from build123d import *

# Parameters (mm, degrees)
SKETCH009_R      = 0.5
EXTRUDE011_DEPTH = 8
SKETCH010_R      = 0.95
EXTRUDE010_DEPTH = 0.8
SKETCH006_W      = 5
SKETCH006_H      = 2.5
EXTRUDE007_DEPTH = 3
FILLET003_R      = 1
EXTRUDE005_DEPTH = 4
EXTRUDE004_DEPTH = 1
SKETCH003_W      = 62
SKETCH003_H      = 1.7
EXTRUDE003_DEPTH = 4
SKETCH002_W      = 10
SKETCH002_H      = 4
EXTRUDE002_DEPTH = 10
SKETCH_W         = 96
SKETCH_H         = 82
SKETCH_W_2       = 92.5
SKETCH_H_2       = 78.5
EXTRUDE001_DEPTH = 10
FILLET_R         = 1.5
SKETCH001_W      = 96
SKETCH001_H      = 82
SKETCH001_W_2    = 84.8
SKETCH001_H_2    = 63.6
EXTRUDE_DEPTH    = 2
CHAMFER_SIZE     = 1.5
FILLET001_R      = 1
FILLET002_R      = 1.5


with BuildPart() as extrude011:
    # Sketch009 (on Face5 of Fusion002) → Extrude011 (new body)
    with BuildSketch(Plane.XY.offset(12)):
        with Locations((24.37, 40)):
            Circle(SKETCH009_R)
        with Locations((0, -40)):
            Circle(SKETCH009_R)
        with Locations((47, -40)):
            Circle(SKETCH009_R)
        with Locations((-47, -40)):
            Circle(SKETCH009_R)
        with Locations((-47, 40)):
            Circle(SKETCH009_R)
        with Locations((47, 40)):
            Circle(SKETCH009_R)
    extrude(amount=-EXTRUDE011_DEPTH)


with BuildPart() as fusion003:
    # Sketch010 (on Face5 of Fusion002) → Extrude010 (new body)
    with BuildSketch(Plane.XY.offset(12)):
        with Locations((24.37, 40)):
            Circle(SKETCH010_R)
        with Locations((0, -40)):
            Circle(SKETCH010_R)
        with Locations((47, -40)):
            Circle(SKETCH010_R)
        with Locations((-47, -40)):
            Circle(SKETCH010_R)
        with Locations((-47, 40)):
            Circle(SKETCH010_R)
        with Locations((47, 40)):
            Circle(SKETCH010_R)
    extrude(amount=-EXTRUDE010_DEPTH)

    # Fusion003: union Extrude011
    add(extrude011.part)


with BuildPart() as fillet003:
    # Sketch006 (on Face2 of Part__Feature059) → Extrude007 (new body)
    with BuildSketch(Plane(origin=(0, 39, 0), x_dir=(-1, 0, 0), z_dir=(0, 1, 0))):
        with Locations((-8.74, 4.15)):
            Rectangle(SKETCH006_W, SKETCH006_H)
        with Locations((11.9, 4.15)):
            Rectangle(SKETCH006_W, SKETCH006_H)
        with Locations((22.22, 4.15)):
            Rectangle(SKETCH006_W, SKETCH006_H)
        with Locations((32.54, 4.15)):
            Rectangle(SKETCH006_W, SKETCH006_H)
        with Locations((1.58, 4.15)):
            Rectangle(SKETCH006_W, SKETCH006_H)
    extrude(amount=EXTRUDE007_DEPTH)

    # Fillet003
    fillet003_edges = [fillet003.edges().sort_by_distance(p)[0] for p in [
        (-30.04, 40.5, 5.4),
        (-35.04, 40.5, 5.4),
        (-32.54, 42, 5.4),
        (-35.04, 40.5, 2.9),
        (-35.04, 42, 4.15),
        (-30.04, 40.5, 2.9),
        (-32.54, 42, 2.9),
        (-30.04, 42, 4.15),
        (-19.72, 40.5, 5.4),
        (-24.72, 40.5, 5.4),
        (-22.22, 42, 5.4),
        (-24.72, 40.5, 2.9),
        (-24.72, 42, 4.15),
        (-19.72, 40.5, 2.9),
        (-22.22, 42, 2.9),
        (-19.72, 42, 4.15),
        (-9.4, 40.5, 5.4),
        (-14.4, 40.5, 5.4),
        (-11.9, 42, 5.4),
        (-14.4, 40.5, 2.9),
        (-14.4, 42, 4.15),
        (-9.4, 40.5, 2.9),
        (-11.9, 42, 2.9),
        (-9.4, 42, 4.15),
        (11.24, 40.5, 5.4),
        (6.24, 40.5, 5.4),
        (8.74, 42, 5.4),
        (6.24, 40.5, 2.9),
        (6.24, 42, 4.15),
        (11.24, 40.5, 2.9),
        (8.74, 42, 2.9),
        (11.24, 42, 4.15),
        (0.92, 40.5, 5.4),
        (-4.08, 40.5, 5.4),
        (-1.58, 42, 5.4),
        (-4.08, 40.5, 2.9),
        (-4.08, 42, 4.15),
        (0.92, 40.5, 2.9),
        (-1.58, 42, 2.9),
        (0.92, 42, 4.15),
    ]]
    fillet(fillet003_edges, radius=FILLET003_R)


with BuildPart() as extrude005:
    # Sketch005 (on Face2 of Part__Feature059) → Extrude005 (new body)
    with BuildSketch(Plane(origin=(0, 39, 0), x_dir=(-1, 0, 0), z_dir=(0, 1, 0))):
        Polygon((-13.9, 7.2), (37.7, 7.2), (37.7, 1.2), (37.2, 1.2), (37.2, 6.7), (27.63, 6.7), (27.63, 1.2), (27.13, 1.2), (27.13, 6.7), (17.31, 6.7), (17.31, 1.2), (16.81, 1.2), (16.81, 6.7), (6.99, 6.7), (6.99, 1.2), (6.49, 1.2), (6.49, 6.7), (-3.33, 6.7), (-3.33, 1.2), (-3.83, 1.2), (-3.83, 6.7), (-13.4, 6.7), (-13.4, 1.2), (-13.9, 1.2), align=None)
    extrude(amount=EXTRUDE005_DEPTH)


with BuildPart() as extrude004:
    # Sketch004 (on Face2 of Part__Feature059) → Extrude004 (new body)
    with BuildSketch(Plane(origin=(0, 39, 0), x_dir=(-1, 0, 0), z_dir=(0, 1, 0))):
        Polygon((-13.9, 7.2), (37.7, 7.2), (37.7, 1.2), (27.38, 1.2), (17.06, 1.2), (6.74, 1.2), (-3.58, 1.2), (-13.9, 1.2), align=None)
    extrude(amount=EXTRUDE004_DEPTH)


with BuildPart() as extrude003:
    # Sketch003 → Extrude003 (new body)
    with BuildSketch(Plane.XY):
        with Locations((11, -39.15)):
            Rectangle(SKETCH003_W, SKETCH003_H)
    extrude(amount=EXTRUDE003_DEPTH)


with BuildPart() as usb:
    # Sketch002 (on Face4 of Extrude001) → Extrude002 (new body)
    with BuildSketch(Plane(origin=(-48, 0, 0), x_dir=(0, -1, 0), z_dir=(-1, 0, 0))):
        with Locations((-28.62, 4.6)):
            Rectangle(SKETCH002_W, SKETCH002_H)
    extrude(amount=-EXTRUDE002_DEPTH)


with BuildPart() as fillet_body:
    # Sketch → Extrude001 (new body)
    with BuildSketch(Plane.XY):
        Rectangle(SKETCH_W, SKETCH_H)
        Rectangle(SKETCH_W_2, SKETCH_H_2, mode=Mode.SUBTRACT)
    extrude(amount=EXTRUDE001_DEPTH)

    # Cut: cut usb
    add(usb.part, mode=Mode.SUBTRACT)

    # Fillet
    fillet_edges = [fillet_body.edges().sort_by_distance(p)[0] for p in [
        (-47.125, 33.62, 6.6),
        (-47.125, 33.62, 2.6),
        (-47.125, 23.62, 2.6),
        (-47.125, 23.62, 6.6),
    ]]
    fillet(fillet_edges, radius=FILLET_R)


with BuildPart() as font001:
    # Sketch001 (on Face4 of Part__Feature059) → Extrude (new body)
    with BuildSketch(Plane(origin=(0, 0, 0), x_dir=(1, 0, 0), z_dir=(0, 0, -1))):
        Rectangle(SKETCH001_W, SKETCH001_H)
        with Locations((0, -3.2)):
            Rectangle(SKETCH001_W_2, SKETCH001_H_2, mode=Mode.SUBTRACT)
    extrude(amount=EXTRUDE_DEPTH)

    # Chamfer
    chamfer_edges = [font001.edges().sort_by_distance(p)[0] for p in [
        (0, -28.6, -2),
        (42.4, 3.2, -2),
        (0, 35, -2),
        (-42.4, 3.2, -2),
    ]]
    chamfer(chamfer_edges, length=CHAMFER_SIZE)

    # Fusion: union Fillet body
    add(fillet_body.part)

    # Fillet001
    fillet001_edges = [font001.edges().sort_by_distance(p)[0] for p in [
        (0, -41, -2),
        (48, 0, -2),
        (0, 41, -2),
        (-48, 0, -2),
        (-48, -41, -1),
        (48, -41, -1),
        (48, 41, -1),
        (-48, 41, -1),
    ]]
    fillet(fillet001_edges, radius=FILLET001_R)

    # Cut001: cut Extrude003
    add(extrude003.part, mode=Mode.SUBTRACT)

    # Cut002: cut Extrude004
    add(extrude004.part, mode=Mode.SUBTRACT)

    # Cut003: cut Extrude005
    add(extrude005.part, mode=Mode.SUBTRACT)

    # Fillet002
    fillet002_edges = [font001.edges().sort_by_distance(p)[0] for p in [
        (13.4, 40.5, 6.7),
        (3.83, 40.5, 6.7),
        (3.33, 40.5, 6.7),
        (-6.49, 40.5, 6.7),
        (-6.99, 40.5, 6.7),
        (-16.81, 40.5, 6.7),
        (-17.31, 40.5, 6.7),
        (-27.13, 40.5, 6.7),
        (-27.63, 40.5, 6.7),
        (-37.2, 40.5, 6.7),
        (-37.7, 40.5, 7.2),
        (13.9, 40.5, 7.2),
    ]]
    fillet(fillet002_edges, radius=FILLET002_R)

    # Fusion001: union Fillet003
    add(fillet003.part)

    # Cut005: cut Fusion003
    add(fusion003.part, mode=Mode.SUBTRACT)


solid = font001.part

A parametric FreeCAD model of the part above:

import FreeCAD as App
import Part
import Sketcher


def edges_at(feature, points):
    """Names of the edges that pass closest to the given points."""
    edges = feature.Shape.Edges
    near = lambda p: min(range(len(edges)), key=lambda i: edges[i].distToShape(Part.Vertex(*p))[0])
    return sorted({f"Edge{near(p) + 1}" for p in points})

doc = App.newDocument("Part")
body = doc.addObject("PartDesign::Body", "Body")
body.AllowCompound = True

sketch1 = body.newObject("Sketcher::SketchObject", "Sketch")
sketch1.AttachmentSupport = (doc.getObject("XY_Plane"), [""])
sketch1.MapMode = "FlatFace"
sketch1.AttachmentOffset = App.Placement(App.Vector(0, 0, 12), App.Rotation())
sketch1.addGeometry([
    Part.Circle(App.Vector(24.37, 40, 0), App.Vector(0, 0, 1), 0.5),
    Part.Circle(App.Vector(0, -40, 0), App.Vector(0, 0, 1), 0.5),
    Part.Circle(App.Vector(47, -40, 0), App.Vector(0, 0, 1), 0.5),
    Part.Circle(App.Vector(-47, -40, 0), App.Vector(0, 0, 1), 0.5),
    Part.Circle(App.Vector(-47, 40, 0), App.Vector(0, 0, 1), 0.5),
    Part.Circle(App.Vector(47, 40, 0), App.Vector(0, 0, 1), 0.5),
], False)
sketch1.addConstraint([
    Sketcher.Constraint("Equal", 0, 1),
    Sketcher.Constraint("Equal", 1, 2),
    Sketcher.Constraint("Equal", 2, 3),
    Sketcher.Constraint("Equal", 3, 4),
    Sketcher.Constraint("Equal", 4, 5),
    Sketcher.Constraint("Symmetric", 2, 3, 4, 3, -1, 1),
    Sketcher.Constraint("Symmetric", 3, 3, 5, 3, -1, 1),
    Sketcher.Constraint("Symmetric", 2, 3, 3, 3, -2),
    Sketcher.Constraint("PointOnObject", 1, 3, -2),
    Sketcher.Constraint("Horizontal", 1, 3, 2, 3),
    Sketcher.Constraint("Horizontal", 0, 3, 4, 3),
    Sketcher.Constraint("Diameter", 0, 1.0),
    Sketcher.Constraint("DistanceY", -1, 1, 0, 3, 40.0),
    Sketcher.Constraint("DistanceX", -1, 1, 2, 3, 47.0),
    Sketcher.Constraint("DistanceX", -1, 1, 0, 3, 24.37),
])
pad1 = body.newObject("PartDesign::Pad", "Pad")
pad1.Profile = sketch1
pad1.Length = 8
pad1.Reversed = True
body2 = doc.addObject("PartDesign::Body", "Body001")
body2.AllowCompound = True

sketch2 = body2.newObject("Sketcher::SketchObject", "Sketch001")
sketch2.AttachmentSupport = (doc.getObject("XY_Plane001"), [""])
sketch2.MapMode = "FlatFace"
sketch2.AttachmentOffset = App.Placement(App.Vector(0, 0, 12), App.Rotation())
sketch2.addGeometry([
    Part.Circle(App.Vector(24.37, 40, 0), App.Vector(0, 0, 1), 0.95),
    Part.Circle(App.Vector(0, -40, 0), App.Vector(0, 0, 1), 0.95),
    Part.Circle(App.Vector(47, -40, 0), App.Vector(0, 0, 1), 0.95),
    Part.Circle(App.Vector(-47, -40, 0), App.Vector(0, 0, 1), 0.95),
    Part.Circle(App.Vector(-47, 40, 0), App.Vector(0, 0, 1), 0.95),
    Part.Circle(App.Vector(47, 40, 0), App.Vector(0, 0, 1), 0.95),
], False)
sketch2.addConstraint([
    Sketcher.Constraint("Equal", 0, 1),
    Sketcher.Constraint("Equal", 1, 2),
    Sketcher.Constraint("Equal", 2, 3),
    Sketcher.Constraint("Equal", 3, 4),
    Sketcher.Constraint("Equal", 4, 5),
    Sketcher.Constraint("Symmetric", 2, 3, 4, 3, -1, 1),
    Sketcher.Constraint("Symmetric", 3, 3, 5, 3, -1, 1),
    Sketcher.Constraint("Symmetric", 2, 3, 3, 3, -2),
    Sketcher.Constraint("PointOnObject", 1, 3, -2),
    Sketcher.Constraint("Horizontal", 1, 3, 2, 3),
    Sketcher.Constraint("Horizontal", 0, 3, 4, 3),
    Sketcher.Constraint("Diameter", 0, 1.9),
    Sketcher.Constraint("DistanceY", -1, 1, 0, 3, 40.0),
    Sketcher.Constraint("DistanceX", -1, 1, 2, 3, 47.0),
    Sketcher.Constraint("DistanceX", -1, 1, 0, 3, 24.37),
])
pad2 = body2.newObject("PartDesign::Pad", "Pad001")
pad2.Profile = sketch2
pad2.Length = 0.8
pad2.Reversed = True
doc.recompute()

boolean = body2.newObject("PartDesign::Boolean", "Boolean")
boolean.Type = "Fuse"
boolean.addObjects([body])
body3 = doc.addObject("PartDesign::Body", "Body002")
body3.AllowCompound = True

sketch3 = body3.newObject("Sketcher::SketchObject", "Sketch002")
sketch3.AttachmentSupport = (doc.getObject("XZ_Plane002"), [""])
sketch3.MapMode = "FlatFace"
sketch3.AttachmentOffset = App.Placement(App.Vector(0, 0, -39), App.Rotation())
sketch3.addGeometry([
    Part.LineSegment(App.Vector(11.24, 5.4, 0), App.Vector(11.24, 2.9, 0)),
    Part.LineSegment(App.Vector(11.24, 2.9, 0), App.Vector(6.24, 2.9, 0)),
    Part.LineSegment(App.Vector(6.24, 2.9, 0), App.Vector(6.24, 5.4, 0)),
    Part.LineSegment(App.Vector(6.24, 5.4, 0), App.Vector(11.24, 5.4, 0)),
    Part.LineSegment(App.Vector(-9.4, 5.4, 0), App.Vector(-9.4, 2.9, 0)),
    Part.LineSegment(App.Vector(-9.4, 2.9, 0), App.Vector(-14.4, 2.9, 0)),
    Part.LineSegment(App.Vector(-14.4, 2.9, 0), App.Vector(-14.4, 5.4, 0)),
    Part.LineSegment(App.Vector(-14.4, 5.4, 0), App.Vector(-9.4, 5.4, 0)),
    Part.LineSegment(App.Vector(-19.72, 5.4, 0), App.Vector(-19.72, 2.9, 0)),
    Part.LineSegment(App.Vector(-19.72, 2.9, 0), App.Vector(-24.72, 2.9, 0)),
    Part.LineSegment(App.Vector(-24.72, 2.9, 0), App.Vector(-24.72, 5.4, 0)),
    Part.LineSegment(App.Vector(-24.72, 5.4, 0), App.Vector(-19.72, 5.4, 0)),
    Part.LineSegment(App.Vector(-30.04, 5.4, 0), App.Vector(-30.04, 2.9, 0)),
    Part.LineSegment(App.Vector(-30.04, 2.9, 0), App.Vector(-35.04, 2.9, 0)),
    Part.LineSegment(App.Vector(-35.04, 2.9, 0), App.Vector(-35.04, 5.4, 0)),
    Part.LineSegment(App.Vector(-35.04, 5.4, 0), App.Vector(-30.04, 5.4, 0)),
    Part.LineSegment(App.Vector(0.92, 5.4, 0), App.Vector(0.92, 2.9, 0)),
    Part.LineSegment(App.Vector(0.92, 2.9, 0), App.Vector(-4.08, 2.9, 0)),
    Part.LineSegment(App.Vector(-4.08, 2.9, 0), App.Vector(-4.08, 5.4, 0)),
    Part.LineSegment(App.Vector(-4.08, 5.4, 0), App.Vector(0.92, 5.4, 0)),
], False)
sketch3.addConstraint([
    Sketcher.Constraint("Coincident", 0, 2, 1, 1),
    Sketcher.Constraint("Coincident", 1, 2, 2, 1),
    Sketcher.Constraint("Coincident", 2, 2, 3, 1),
    Sketcher.Constraint("Coincident", 3, 2, 0, 1),
    Sketcher.Constraint("Coincident", 4, 2, 5, 1),
    Sketcher.Constraint("Coincident", 5, 2, 6, 1),
    Sketcher.Constraint("Coincident", 6, 2, 7, 1),
    Sketcher.Constraint("Coincident", 7, 2, 4, 1),
    Sketcher.Constraint("Coincident", 8, 2, 9, 1),
    Sketcher.Constraint("Coincident", 9, 2, 10, 1),
    Sketcher.Constraint("Coincident", 10, 2, 11, 1),
    Sketcher.Constraint("Coincident", 11, 2, 8, 1),
    Sketcher.Constraint("Coincident", 12, 2, 13, 1),
    Sketcher.Constraint("Coincident", 13, 2, 14, 1),
    Sketcher.Constraint("Coincident", 14, 2, 15, 1),
    Sketcher.Constraint("Coincident", 15, 2, 12, 1),
    Sketcher.Constraint("Coincident", 16, 2, 17, 1),
    Sketcher.Constraint("Coincident", 17, 2, 18, 1),
    Sketcher.Constraint("Coincident", 18, 2, 19, 1),
    Sketcher.Constraint("Coincident", 19, 2, 16, 1),
    Sketcher.Constraint("Vertical", 0),
    Sketcher.Constraint("Horizontal", 1),
    Sketcher.Constraint("Vertical", 2),
    Sketcher.Constraint("Horizontal", 3),
    Sketcher.Constraint("Vertical", 4),
    Sketcher.Constraint("Horizontal", 5),
    Sketcher.Constraint("Vertical", 6),
    Sketcher.Constraint("Horizontal", 7),
    Sketcher.Constraint("Vertical", 8),
    Sketcher.Constraint("Horizontal", 9),
    Sketcher.Constraint("Vertical", 10),
    Sketcher.Constraint("Horizontal", 11),
    Sketcher.Constraint("Vertical", 12),
    Sketcher.Constraint("Horizontal", 13),
    Sketcher.Constraint("Vertical", 14),
    Sketcher.Constraint("Horizontal", 15),
    Sketcher.Constraint("Vertical", 16),
    Sketcher.Constraint("Horizontal", 17),
    Sketcher.Constraint("Vertical", 18),
    Sketcher.Constraint("Horizontal", 19),
    Sketcher.Constraint("Horizontal", 1, 2, 4, 2),
    Sketcher.Constraint("Horizontal", 3, 2, 6, 2),
    Sketcher.Constraint("Horizontal", 5, 2, 8, 2),
    Sketcher.Constraint("Horizontal", 7, 2, 10, 2),
    Sketcher.Constraint("Horizontal", 9, 2, 12, 2),
    Sketcher.Constraint("Horizontal", 11, 2, 14, 2),
    Sketcher.Constraint("Horizontal", 13, 2, 16, 2),
    Sketcher.Constraint("Horizontal", 15, 2, 18, 2),
    Sketcher.Constraint("Equal", 3, 5),
    Sketcher.Constraint("Equal", 7, 9),
    Sketcher.Constraint("Equal", 11, 13),
    Sketcher.Constraint("Equal", 15, 17),
    Sketcher.Constraint("DistanceX", 1, 2, 1, 1, 5.0),
    Sketcher.Constraint("DistanceY", 0, 2, 0, 1, 2.5),
    Sketcher.Constraint("DistanceY", -1, 1, 0, 2, 2.9),
    Sketcher.Constraint("DistanceX", 4, 2, -1, 1, 9.4),
    Sketcher.Constraint("DistanceX", -1, 1, 0, 2, 11.24),
    Sketcher.Constraint("DistanceX", 8, 2, -1, 1, 19.72),
    Sketcher.Constraint("DistanceX", 12, 2, -1, 1, 30.04),
    Sketcher.Constraint("DistanceX", -1, 1, 16, 2, 0.92),
])
pad3 = body3.newObject("PartDesign::Pad", "Pad002")
pad3.Profile = sketch3
pad3.Length = 3
pad3.Reversed = True
doc.recompute()

fillet = body3.newObject("PartDesign::Fillet", "Fillet")
fillet.Base = (pad3, edges_at(pad3, [
    (-30.04, 40.5, 5.4),
    (-35.04, 40.5, 5.4),
    (-32.54, 42, 5.4),
    (-35.04, 40.5, 2.9),
    (-35.04, 42, 4.15),
    (-30.04, 40.5, 2.9),
    (-32.54, 42, 2.9),
    (-30.04, 42, 4.15),
    (-19.72, 40.5, 5.4),
    (-24.72, 40.5, 5.4),
    (-22.22, 42, 5.4),
    (-24.72, 40.5, 2.9),
    (-24.72, 42, 4.15),
    (-19.72, 40.5, 2.9),
    (-22.22, 42, 2.9),
    (-19.72, 42, 4.15),
    (-9.4, 40.5, 5.4),
    (-14.4, 40.5, 5.4),
    (-11.9, 42, 5.4),
    (-14.4, 40.5, 2.9),
    (-14.4, 42, 4.15),
    (-9.4, 40.5, 2.9),
    (-11.9, 42, 2.9),
    (-9.4, 42, 4.15),
    (11.24, 40.5, 5.4),
    (6.24, 40.5, 5.4),
    (8.74, 42, 5.4),
    (6.24, 40.5, 2.9),
    (6.24, 42, 4.15),
    (11.24, 40.5, 2.9),
    (8.74, 42, 2.9),
    (11.24, 42, 4.15),
    (0.92, 40.5, 5.4),
    (-4.08, 40.5, 5.4),
    (-1.58, 42, 5.4),
    (-4.08, 40.5, 2.9),
    (-4.08, 42, 4.15),
    (0.92, 40.5, 2.9),
    (-1.58, 42, 2.9),
    (0.92, 42, 4.15),
]))
fillet.Radius = 1
body4 = doc.addObject("PartDesign::Body", "Body003")

sketch4 = body4.newObject("Sketcher::SketchObject", "Sketch003")
sketch4.AttachmentSupport = (doc.getObject("XZ_Plane003"), [""])
sketch4.MapMode = "FlatFace"
sketch4.AttachmentOffset = App.Placement(App.Vector(0, 0, -39), App.Rotation())
sketch4.addGeometry([
    Part.LineSegment(App.Vector(-37.7, 7.2, 0), App.Vector(13.9, 7.2, 0)),
    Part.LineSegment(App.Vector(13.9, 7.2, 0), App.Vector(13.9, 1.2, 0)),
    Part.LineSegment(App.Vector(13.9, 1.2, 0), App.Vector(13.4, 1.2, 0)),
    Part.LineSegment(App.Vector(13.4, 1.2, 0), App.Vector(13.4, 6.7, 0)),
    Part.LineSegment(App.Vector(13.4, 6.7, 0), App.Vector(3.83, 6.7, 0)),
    Part.LineSegment(App.Vector(3.83, 6.7, 0), App.Vector(3.83, 1.2, 0)),
    Part.LineSegment(App.Vector(3.83, 1.2, 0), App.Vector(3.33, 1.2, 0)),
    Part.LineSegment(App.Vector(3.33, 1.2, 0), App.Vector(3.33, 6.7, 0)),
    Part.LineSegment(App.Vector(3.33, 6.7, 0), App.Vector(-6.49, 6.7, 0)),
    Part.LineSegment(App.Vector(-6.49, 6.7, 0), App.Vector(-6.49, 1.2, 0)),
    Part.LineSegment(App.Vector(-6.49, 1.2, 0), App.Vector(-6.99, 1.2, 0)),
    Part.LineSegment(App.Vector(-6.99, 1.2, 0), App.Vector(-6.99, 6.7, 0)),
    Part.LineSegment(App.Vector(-6.99, 6.7, 0), App.Vector(-16.81, 6.7, 0)),
    Part.LineSegment(App.Vector(-16.81, 6.7, 0), App.Vector(-16.81, 1.2, 0)),
    Part.LineSegment(App.Vector(-16.81, 1.2, 0), App.Vector(-17.31, 1.2, 0)),
    Part.LineSegment(App.Vector(-17.31, 1.2, 0), App.Vector(-17.31, 6.7, 0)),
    Part.LineSegment(App.Vector(-17.31, 6.7, 0), App.Vector(-27.13, 6.7, 0)),
    Part.LineSegment(App.Vector(-27.13, 6.7, 0), App.Vector(-27.13, 1.2, 0)),
    Part.LineSegment(App.Vector(-27.13, 1.2, 0), App.Vector(-27.63, 1.2, 0)),
    Part.LineSegment(App.Vector(-27.63, 1.2, 0), App.Vector(-27.63, 6.7, 0)),
    Part.LineSegment(App.Vector(-27.63, 6.7, 0), App.Vector(-37.2, 6.7, 0)),
    Part.LineSegment(App.Vector(-37.2, 6.7, 0), App.Vector(-37.2, 1.2, 0)),
    Part.LineSegment(App.Vector(-37.2, 1.2, 0), App.Vector(-37.7, 1.2, 0)),
    Part.LineSegment(App.Vector(-37.7, 1.2, 0), App.Vector(-37.7, 7.2, 0)),
], False)
sketch4.addConstraint([
    Sketcher.Constraint("Coincident", 0, 2, 1, 1),
    Sketcher.Constraint("Coincident", 1, 2, 2, 1),
    Sketcher.Constraint("Coincident", 2, 2, 3, 1),
    Sketcher.Constraint("Coincident", 3, 2, 4, 1),
    Sketcher.Constraint("Coincident", 4, 2, 5, 1),
    Sketcher.Constraint("Coincident", 5, 2, 6, 1),
    Sketcher.Constraint("Coincident", 6, 2, 7, 1),
    Sketcher.Constraint("Coincident", 7, 2, 8, 1),
    Sketcher.Constraint("Coincident", 8, 2, 9, 1),
    Sketcher.Constraint("Coincident", 9, 2, 10, 1),
    Sketcher.Constraint("Coincident", 10, 2, 11, 1),
    Sketcher.Constraint("Coincident", 11, 2, 12, 1),
    Sketcher.Constraint("Coincident", 12, 2, 13, 1),
    Sketcher.Constraint("Coincident", 13, 2, 14, 1),
    Sketcher.Constraint("Coincident", 14, 2, 15, 1),
    Sketcher.Constraint("Coincident", 15, 2, 16, 1),
    Sketcher.Constraint("Coincident", 16, 2, 17, 1),
    Sketcher.Constraint("Coincident", 17, 2, 18, 1),
    Sketcher.Constraint("Coincident", 18, 2, 19, 1),
    Sketcher.Constraint("Coincident", 19, 2, 20, 1),
    Sketcher.Constraint("Coincident", 20, 2, 21, 1),
    Sketcher.Constraint("Coincident", 21, 2, 22, 1),
    Sketcher.Constraint("Coincident", 22, 2, 23, 1),
    Sketcher.Constraint("Coincident", 23, 2, 0, 1),
    Sketcher.Constraint("Horizontal", 0),
    Sketcher.Constraint("Vertical", 1),
    Sketcher.Constraint("Horizontal", 2),
    Sketcher.Constraint("Vertical", 3),
    Sketcher.Constraint("Horizontal", 4),
    Sketcher.Constraint("Vertical", 5),
    Sketcher.Constraint("Horizontal", 6),
    Sketcher.Constraint("Vertical", 7),
    Sketcher.Constraint("Horizontal", 8),
    Sketcher.Constraint("Vertical", 9),
    Sketcher.Constraint("Horizontal", 10),
    Sketcher.Constraint("Vertical", 11),
    Sketcher.Constraint("Horizontal", 12),
    Sketcher.Constraint("Vertical", 13),
    Sketcher.Constraint("Horizontal", 14),
    Sketcher.Constraint("Vertical", 15),
    Sketcher.Constraint("Horizontal", 16),
    Sketcher.Constraint("Vertical", 17),
    Sketcher.Constraint("Horizontal", 18),
    Sketcher.Constraint("Vertical", 19),
    Sketcher.Constraint("Horizontal", 20),
    Sketcher.Constraint("Vertical", 21),
    Sketcher.Constraint("Horizontal", 22),
    Sketcher.Constraint("Vertical", 23),
    Sketcher.Constraint("Horizontal", 2, 2, 5, 2),
    Sketcher.Constraint("Horizontal", 4, 2, 7, 2),
    Sketcher.Constraint("Horizontal", 6, 2, 9, 2),
    Sketcher.Constraint("Horizontal", 8, 2, 11, 2),
    Sketcher.Constraint("Horizontal", 10, 2, 13, 2),
    Sketcher.Constraint("Horizontal", 12, 2, 15, 2),
    Sketcher.Constraint("Horizontal", 14, 2, 17, 2),
    Sketcher.Constraint("Horizontal", 16, 2, 19, 2),
    Sketcher.Constraint("Horizontal", 18, 2, 21, 2),
    Sketcher.Constraint("Equal", 2, 6),
    Sketcher.Constraint("Equal", 6, 10),
    Sketcher.Constraint("Equal", 8, 12),
    Sketcher.Constraint("Equal", 10, 14),
    Sketcher.Constraint("Equal", 12, 16),
    Sketcher.Constraint("Equal", 14, 18),
    Sketcher.Constraint("Equal", 4, 20),
    Sketcher.Constraint("Equal", 18, 22),
    Sketcher.Constraint("DistanceY", 1, 2, 1, 1, 6.0),
    Sketcher.Constraint("DistanceX", 0, 1, 0, 2, 51.6),
    Sketcher.Constraint("DistanceX", 2, 2, 2, 1, 0.5),
    Sketcher.Constraint("DistanceY", 3, 1, 3, 2, 5.5),
    Sketcher.Constraint("DistanceX", 4, 2, 4, 1, 9.57),
    Sketcher.Constraint("DistanceX", -1, 1, 0, 2, 13.9),
    Sketcher.Constraint("DistanceY", -1, 1, 0, 2, 7.2),
])
pad4 = body4.newObject("PartDesign::Pad", "Pad003")
pad4.Profile = sketch4
pad4.Length = 4
pad4.Reversed = True
body5 = doc.addObject("PartDesign::Body", "Body004")

sketch5 = body5.newObject("Sketcher::SketchObject", "Sketch004")
sketch5.AttachmentSupport = (doc.getObject("XZ_Plane004"), [""])
sketch5.MapMode = "FlatFace"
sketch5.AttachmentOffset = App.Placement(App.Vector(0, 0, -39), App.Rotation())
sketch5.addGeometry([
    Part.LineSegment(App.Vector(-37.7, 7.2, 0), App.Vector(13.9, 7.2, 0)),
    Part.LineSegment(App.Vector(13.9, 7.2, 0), App.Vector(13.9, 1.2, 0)),
    Part.LineSegment(App.Vector(13.9, 1.2, 0), App.Vector(-37.7, 1.2, 0)),
    Part.LineSegment(App.Vector(-37.7, 1.2, 0), App.Vector(-37.7, 7.2, 0)),
], False)
sketch5.addConstraint([
    Sketcher.Constraint("Coincident", 0, 2, 1, 1),
    Sketcher.Constraint("Coincident", 1, 2, 2, 1),
    Sketcher.Constraint("Coincident", 2, 2, 3, 1),
    Sketcher.Constraint("Coincident", 3, 2, 0, 1),
    Sketcher.Constraint("Horizontal", 0),
    Sketcher.Constraint("Vertical", 1),
    Sketcher.Constraint("Horizontal", 2),
    Sketcher.Constraint("Vertical", 3),
    Sketcher.Constraint("DistanceY", 1, 2, 1, 1, 6.0),
    Sketcher.Constraint("DistanceX", 0, 1, 0, 2, 51.6),
    Sketcher.Constraint("DistanceX", -1, 1, 0, 2, 13.9),
    Sketcher.Constraint("DistanceY", -1, 1, 0, 2, 7.2),
])
pad5 = body5.newObject("PartDesign::Pad", "Pad004")
pad5.Profile = sketch5
pad5.Length = 1
pad5.Reversed = True
body6 = doc.addObject("PartDesign::Body", "Body005")

sketch6 = body6.newObject("Sketcher::SketchObject", "Sketch005")
sketch6.AttachmentSupport = (doc.getObject("XY_Plane005"), [""])
sketch6.MapMode = "FlatFace"
sketch6.addGeometry([
    Part.LineSegment(App.Vector(-20, -38.3, 0), App.Vector(-20, -40, 0)),
    Part.LineSegment(App.Vector(-20, -40, 0), App.Vector(42, -40, 0)),
    Part.LineSegment(App.Vector(42, -40, 0), App.Vector(42, -38.3, 0)),
    Part.LineSegment(App.Vector(42, -38.3, 0), App.Vector(-20, -38.3, 0)),
], False)
sketch6.addConstraint([
    Sketcher.Constraint("Coincident", 0, 2, 1, 1),
    Sketcher.Constraint("Coincident", 1, 2, 2, 1),
    Sketcher.Constraint("Coincident", 2, 2, 3, 1),
    Sketcher.Constraint("Coincident", 3, 2, 0, 1),
    Sketcher.Constraint("Vertical", 0),
    Sketcher.Constraint("Horizontal", 1),
    Sketcher.Constraint("Vertical", 2),
    Sketcher.Constraint("Horizontal", 3),
    Sketcher.Constraint("DistanceX", 1, 1, 1, 2, 62.0),
    Sketcher.Constraint("DistanceY", 0, 2, 0, 1, 1.7),
    Sketcher.Constraint("DistanceX", 0, 2, -1, 1, 20.0),
    Sketcher.Constraint("DistanceY", 0, 2, -1, 1, 40.0),
])
pad6 = body6.newObject("PartDesign::Pad", "Pad005")
pad6.Profile = sketch6
pad6.Length = 4
body7 = doc.addObject("PartDesign::Body", "Body006")

sketch7 = body7.newObject("Sketcher::SketchObject", "Sketch006")
sketch7.AttachmentSupport = (doc.getObject("YZ_Plane006"), [""])
sketch7.MapMode = "FlatFace"
sketch7.AttachmentOffset = App.Placement(App.Vector(0, 0, -48), App.Rotation())
sketch7.addGeometry([
    Part.LineSegment(App.Vector(33.62, 6.6, 0), App.Vector(33.62, 2.6, 0)),
    Part.LineSegment(App.Vector(33.62, 2.6, 0), App.Vector(23.62, 2.6, 0)),
    Part.LineSegment(App.Vector(23.62, 2.6, 0), App.Vector(23.62, 6.6, 0)),
    Part.LineSegment(App.Vector(23.62, 6.6, 0), App.Vector(33.62, 6.6, 0)),
], False)
sketch7.addConstraint([
    Sketcher.Constraint("Coincident", 0, 2, 1, 1),
    Sketcher.Constraint("Coincident", 1, 2, 2, 1),
    Sketcher.Constraint("Coincident", 2, 2, 3, 1),
    Sketcher.Constraint("Coincident", 3, 2, 0, 1),
    Sketcher.Constraint("Vertical", 0),
    Sketcher.Constraint("Horizontal", 1),
    Sketcher.Constraint("Vertical", 2),
    Sketcher.Constraint("Horizontal", 3),
    Sketcher.Constraint("DistanceX", 1, 2, 1, 1, 10.0),
    Sketcher.Constraint("DistanceY", 0, 2, 0, 1, 4.0),
    Sketcher.Constraint("DistanceY", -1, 1, 0, 2, 2.6),
    Sketcher.Constraint("DistanceX", -1, 1, 0, 2, 33.62),
])
pad7 = body7.newObject("PartDesign::Pad", "Pad006")
pad7.Profile = sketch7
pad7.Length = 10
body8 = doc.addObject("PartDesign::Body", "Body007")

sketch8 = body8.newObject("Sketcher::SketchObject", "Sketch007")
sketch8.AttachmentSupport = (doc.getObject("XY_Plane007"), [""])
sketch8.MapMode = "FlatFace"
sketch8.addGeometry([
    Part.LineSegment(App.Vector(-48, 41, 0), App.Vector(-48, -41, 0)),
    Part.LineSegment(App.Vector(-48, -41, 0), App.Vector(48, -41, 0)),
    Part.LineSegment(App.Vector(48, -41, 0), App.Vector(48, 41, 0)),
    Part.LineSegment(App.Vector(48, 41, 0), App.Vector(-48, 41, 0)),
    Part.LineSegment(App.Vector(46.25, -39.25, 0), App.Vector(-46.25, -39.25, 0)),
    Part.LineSegment(App.Vector(-46.25, -39.25, 0), App.Vector(-46.25, 39.25, 0)),
    Part.LineSegment(App.Vector(-46.25, 39.25, 0), App.Vector(46.25, 39.25, 0)),
    Part.LineSegment(App.Vector(46.25, 39.25, 0), App.Vector(46.25, -39.25, 0)),
], False)
sketch8.addConstraint([
    Sketcher.Constraint("Coincident", 0, 2, 1, 1),
    Sketcher.Constraint("Coincident", 1, 2, 2, 1),
    Sketcher.Constraint("Coincident", 2, 2, 3, 1),
    Sketcher.Constraint("Coincident", 3, 2, 0, 1),
    Sketcher.Constraint("Coincident", 4, 2, 5, 1),
    Sketcher.Constraint("Coincident", 5, 2, 6, 1),
    Sketcher.Constraint("Coincident", 6, 2, 7, 1),
    Sketcher.Constraint("Coincident", 7, 2, 4, 1),
    Sketcher.Constraint("Vertical", 0),
    Sketcher.Constraint("Horizontal", 1),
    Sketcher.Constraint("Vertical", 2),
    Sketcher.Constraint("Horizontal", 3),
    Sketcher.Constraint("Horizontal", 4),
    Sketcher.Constraint("Vertical", 5),
    Sketcher.Constraint("Horizontal", 6),
    Sketcher.Constraint("Vertical", 7),
    Sketcher.Constraint("Symmetric", 0, 2, 2, 2, -1, 1),
    Sketcher.Constraint("Symmetric", 4, 2, 6, 2, -1, 1),
    Sketcher.Constraint("DistanceX", 1, 1, 1, 2, 96.0),
    Sketcher.Constraint("DistanceY", 0, 2, 0, 1, 82.0),
    Sketcher.Constraint("DistanceX", 4, 2, 4, 1, 92.5),
    Sketcher.Constraint("DistanceY", 5, 1, 5, 2, 78.5),
])
pad8 = body8.newObject("PartDesign::Pad", "Pad007")
pad8.Profile = sketch8
pad8.Length = 10
doc.recompute()

boolean2 = body8.newObject("PartDesign::Boolean", "Boolean001")
boolean2.Type = "Cut"
boolean2.addObjects([body7])
doc.recompute()

fillet2 = body8.newObject("PartDesign::Fillet", "Fillet001")
fillet2.Base = (boolean2, edges_at(boolean2, [
    (-47.125, 33.62, 6.6),
    (-47.125, 33.62, 2.6),
    (-47.125, 23.62, 2.6),
    (-47.125, 23.62, 6.6),
]))
fillet2.Radius = 1.5
body9 = doc.addObject("PartDesign::Body", "Body008")

sketch9 = body9.newObject("Sketcher::SketchObject", "Sketch008")
sketch9.AttachmentSupport = (doc.getObject("XY_Plane008"), [""])
sketch9.MapMode = "FlatFace"
sketch9.addGeometry([
    Part.LineSegment(App.Vector(-48, -41, 0), App.Vector(-48, 41, 0)),
    Part.LineSegment(App.Vector(-48, 41, 0), App.Vector(48, 41, 0)),
    Part.LineSegment(App.Vector(48, 41, 0), App.Vector(48, -41, 0)),
    Part.LineSegment(App.Vector(48, -41, 0), App.Vector(-48, -41, 0)),
    Part.LineSegment(App.Vector(42.4, 35, 0), App.Vector(-42.4, 35, 0)),
    Part.LineSegment(App.Vector(-42.4, 35, 0), App.Vector(-42.4, -28.6, 0)),
    Part.LineSegment(App.Vector(-42.4, -28.6, 0), App.Vector(42.4, -28.6, 0)),
    Part.LineSegment(App.Vector(42.4, -28.6, 0), App.Vector(42.4, 35, 0)),
], False)
sketch9.addConstraint([
    Sketcher.Constraint("Coincident", 0, 2, 1, 1),
    Sketcher.Constraint("Coincident", 1, 2, 2, 1),
    Sketcher.Constraint("Coincident", 2, 2, 3, 1),
    Sketcher.Constraint("Coincident", 3, 2, 0, 1),
    Sketcher.Constraint("Coincident", 4, 2, 5, 1),
    Sketcher.Constraint("Coincident", 5, 2, 6, 1),
    Sketcher.Constraint("Coincident", 6, 2, 7, 1),
    Sketcher.Constraint("Coincident", 7, 2, 4, 1),
    Sketcher.Constraint("Vertical", 0),
    Sketcher.Constraint("Horizontal", 1),
    Sketcher.Constraint("Vertical", 2),
    Sketcher.Constraint("Horizontal", 3),
    Sketcher.Constraint("Horizontal", 4),
    Sketcher.Constraint("Vertical", 5),
    Sketcher.Constraint("Horizontal", 6),
    Sketcher.Constraint("Vertical", 7),
    Sketcher.Constraint("Symmetric", 0, 2, 2, 2, -1, 1),
    Sketcher.Constraint("DistanceX", 1, 1, 1, 2, 96.0),
    Sketcher.Constraint("DistanceY", 0, 1, 0, 2, 82.0),
    Sketcher.Constraint("DistanceX", 4, 2, 4, 1, 84.8),
    Sketcher.Constraint("DistanceY", 5, 2, 5, 1, 63.6),
    Sketcher.Constraint("DistanceY", -1, 1, 4, 2, 35.0),
    Sketcher.Constraint("DistanceX", 4, 2, -1, 1, 42.4),
])
pad9 = body9.newObject("PartDesign::Pad", "Pad008")
pad9.Profile = sketch9
pad9.Length = 2
pad9.Reversed = True
doc.recompute()

chamfer = body9.newObject("PartDesign::Chamfer", "Chamfer")
chamfer.Base = (pad9, edges_at(pad9, [
    (0, -28.6, -2),
    (42.4, 3.2, -2),
    (0, 35, -2),
    (-42.4, 3.2, -2),
]))
chamfer.Size = 1.5
doc.recompute()

boolean3 = body9.newObject("PartDesign::Boolean", "Boolean002")
boolean3.Type = "Fuse"
boolean3.addObjects([body8])
doc.recompute()

fillet3 = body9.newObject("PartDesign::Fillet", "Fillet002")
fillet3.Base = (boolean3, edges_at(boolean3, [
    (0, -41, -2),
    (48, 0, -2),
    (0, 41, -2),
    (-48, 0, -2),
    (-48, -41, 4),
    (48, -41, 4),
    (48, 41, 4),
    (-48, 41, 4),
]))
fillet3.Radius = 1
doc.recompute()

boolean4 = body9.newObject("PartDesign::Boolean", "Boolean003")
boolean4.Type = "Cut"
boolean4.addObjects([body6])
doc.recompute()

boolean5 = body9.newObject("PartDesign::Boolean", "Boolean004")
boolean5.Type = "Cut"
boolean5.addObjects([body5])
doc.recompute()

boolean6 = body9.newObject("PartDesign::Boolean", "Boolean005")
boolean6.Type = "Cut"
boolean6.addObjects([body4])
doc.recompute()

fillet4 = body9.newObject("PartDesign::Fillet", "Fillet003")
fillet4.Base = (boolean6, edges_at(boolean6, [
    (13.4, 40.5, 6.7),
    (3.83, 40.5, 6.7),
    (3.33, 40.5, 6.7),
    (-6.49, 40.5, 6.7),
    (-6.99, 40.5, 6.7),
    (-16.81, 40.5, 6.7),
    (-17.31, 40.5, 6.7),
    (-27.13, 40.5, 6.7),
    (-27.63, 40.5, 6.7),
    (-37.2, 40.5, 6.7),
    (-37.7, 40.125, 7.2),
    (13.9, 40.125, 7.2),
]))
fillet4.Radius = 1.5
doc.recompute()

boolean7 = body9.newObject("PartDesign::Boolean", "Boolean006")
boolean7.Type = "Fuse"
boolean7.addObjects([body3])
doc.recompute()

boolean8 = body9.newObject("PartDesign::Boolean", "Boolean007")
boolean8.Type = "Cut"
boolean8.addObjects([body2])

doc.recompute()
